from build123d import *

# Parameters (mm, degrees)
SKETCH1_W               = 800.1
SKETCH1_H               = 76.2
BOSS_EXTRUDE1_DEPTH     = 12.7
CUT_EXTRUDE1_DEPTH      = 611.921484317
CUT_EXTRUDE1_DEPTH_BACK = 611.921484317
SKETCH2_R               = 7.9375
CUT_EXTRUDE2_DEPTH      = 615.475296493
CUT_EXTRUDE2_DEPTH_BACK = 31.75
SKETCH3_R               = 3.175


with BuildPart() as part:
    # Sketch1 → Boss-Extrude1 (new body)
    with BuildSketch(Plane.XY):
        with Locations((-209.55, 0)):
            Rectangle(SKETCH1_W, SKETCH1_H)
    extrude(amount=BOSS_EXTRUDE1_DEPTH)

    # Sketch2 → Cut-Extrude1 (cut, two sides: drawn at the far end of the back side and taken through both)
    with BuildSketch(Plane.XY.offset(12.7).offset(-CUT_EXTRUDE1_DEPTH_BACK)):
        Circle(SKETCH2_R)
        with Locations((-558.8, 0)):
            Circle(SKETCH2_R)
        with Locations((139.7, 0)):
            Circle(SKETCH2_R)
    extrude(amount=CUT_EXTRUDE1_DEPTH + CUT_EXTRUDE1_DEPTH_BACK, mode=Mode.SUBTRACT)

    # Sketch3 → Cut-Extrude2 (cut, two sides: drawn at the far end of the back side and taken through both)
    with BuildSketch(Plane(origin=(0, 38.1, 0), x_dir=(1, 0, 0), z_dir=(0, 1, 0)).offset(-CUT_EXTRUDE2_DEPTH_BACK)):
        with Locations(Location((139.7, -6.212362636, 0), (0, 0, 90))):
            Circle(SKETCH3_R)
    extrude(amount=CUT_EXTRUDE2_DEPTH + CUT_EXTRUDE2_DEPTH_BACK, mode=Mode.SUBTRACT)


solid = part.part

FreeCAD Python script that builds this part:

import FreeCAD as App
import Part
import Sketcher

V = App.Vector
Q = App.Units.Quantity

doc = App.newDocument("Part")
body = doc.addObject("PartDesign::Body", "Body")

# Sketch on XY plane
sketch1 = body.newObject("Sketcher::SketchObject", "Sketch")
sketch1.AttachmentSupport = (doc.getObject("XY_Plane"), [""])
sketch1.MapMode = "FlatFace"
sketch1.addGeometry([
    Part.LineSegment(V(-610, 38, 0), V(-610, -38, 0)),
    Part.LineSegment(V(-610, -38, 0), V(190, -38, 0)),
    Part.LineSegment(V(190, -38, 0), V(190, 38, 0)),
    Part.LineSegment(V(190, 38, 0), V(-610, 38, 0)),
], False)
sketch1.addConstraint([
    Sketcher.Constraint("Coincident", 0, 2, 1, 1),
    Sketcher.Constraint("Coincident", 1, 2, 2, 1),
    Sketcher.Constraint("Coincident", 2, 2, 3, 1),
    Sketcher.Constraint("Coincident", 3, 2, 0, 1),
    Sketcher.Constraint("Vertical", 0),
    Sketcher.Constraint("Horizontal", 1),
    Sketcher.Constraint("Vertical", 2),
    Sketcher.Constraint("Horizontal", 3),
    Sketcher.Constraint("DistanceY", 0, 2, 0, 1, Q("3 in")),
    Sketcher.Constraint("DistanceX", 1, 1, 1, 2, Q("31.5 in")),
    Sketcher.Constraint("DistanceX", 0, 2, -1, 1, Q("24 in")),
    Sketcher.Constraint("DistanceY", 0, 2, -1, 1, Q("1.5 in")),
])
pad1 = body.newObject("PartDesign::Pad", "Pad")
pad1.Profile = sketch1
pad1.Length = Q("0.5 in")

# Sketch on XY plane
sketch2 = body.newObject("Sketcher::SketchObject", "Sketch001")
sketch2.AttachmentSupport = (doc.getObject("XY_Plane"), [""])
sketch2.MapMode = "FlatFace"
sketch2.AttachmentOffset = App.Placement(V(0, 0, 0.5 * 25.4), App.Rotation())
sketch2.addGeometry([
    Part.Circle(V(0, 0, 0), V(0, 0, 1), 8),
    Part.Circle(V(-559, 0, 0), V(0, 0, 1), 8),
    Part.Circle(V(140, 0, 0), V(0, 0, 1), 8),
], False)
sketch2.addConstraint([
    Sketcher.Constraint("Coincident", 0, 3, -1, 1),
    Sketcher.Constraint("Equal", 0, 1),
    Sketcher.Constraint("Equal", 1, 2),
    Sketcher.Constraint("PointOnObject", 1, 3, -1),
    Sketcher.Constraint("PointOnObject", 2, 3, -1),
    Sketcher.Constraint("Diameter", 0, Q("0.625 in")),
    Sketcher.Constraint("DistanceX", 1, 3, -1, 1, Q("22 in")),
    Sketcher.Constraint("DistanceX", -1, 1, 2, 3, Q("5.5 in")),
])
pocket1 = body.newObject("PartDesign::Pocket", "Pocket")
pocket1.Profile = sketch2
pocket1.Type = "ThroughAll"
pocket1.Midplane = True

# Sketch on XZ plane
sketch3 = body.newObject("Sketcher::SketchObject", "Sketch002")
sketch3.AttachmentSupport = (doc.getObject("XZ_Plane"), [""])
sketch3.MapMode = "FlatFace"
sketch3.AttachmentOffset = App.Placement(V(0, 0, -1.5 * 25.4), App.Rotation())
sketch3.addGeometry(Part.Circle(V(139.7, 6.2, 0), V(0, 0, 1), 3.2), False)
sketch3.addConstraint([
    Sketcher.Constraint("Diameter", 0, Q("0.25 in")),
    Sketcher.Constraint("DistanceX", -1, 1, 0, 3, Q("5.5 in")),
    Sketcher.Constraint("DistanceY", -1, 1, 0, 3, Q("6.212363 mm")),
])
pocket2 = body.newObject("PartDesign::Pocket", "Pocket001")
pocket2.Profile = sketch3
pocket2.Type = "TwoLengths"
pocket2.Length = 615.475296
pocket2.Length2 = Q("1.25 in")

doc.recompute()
